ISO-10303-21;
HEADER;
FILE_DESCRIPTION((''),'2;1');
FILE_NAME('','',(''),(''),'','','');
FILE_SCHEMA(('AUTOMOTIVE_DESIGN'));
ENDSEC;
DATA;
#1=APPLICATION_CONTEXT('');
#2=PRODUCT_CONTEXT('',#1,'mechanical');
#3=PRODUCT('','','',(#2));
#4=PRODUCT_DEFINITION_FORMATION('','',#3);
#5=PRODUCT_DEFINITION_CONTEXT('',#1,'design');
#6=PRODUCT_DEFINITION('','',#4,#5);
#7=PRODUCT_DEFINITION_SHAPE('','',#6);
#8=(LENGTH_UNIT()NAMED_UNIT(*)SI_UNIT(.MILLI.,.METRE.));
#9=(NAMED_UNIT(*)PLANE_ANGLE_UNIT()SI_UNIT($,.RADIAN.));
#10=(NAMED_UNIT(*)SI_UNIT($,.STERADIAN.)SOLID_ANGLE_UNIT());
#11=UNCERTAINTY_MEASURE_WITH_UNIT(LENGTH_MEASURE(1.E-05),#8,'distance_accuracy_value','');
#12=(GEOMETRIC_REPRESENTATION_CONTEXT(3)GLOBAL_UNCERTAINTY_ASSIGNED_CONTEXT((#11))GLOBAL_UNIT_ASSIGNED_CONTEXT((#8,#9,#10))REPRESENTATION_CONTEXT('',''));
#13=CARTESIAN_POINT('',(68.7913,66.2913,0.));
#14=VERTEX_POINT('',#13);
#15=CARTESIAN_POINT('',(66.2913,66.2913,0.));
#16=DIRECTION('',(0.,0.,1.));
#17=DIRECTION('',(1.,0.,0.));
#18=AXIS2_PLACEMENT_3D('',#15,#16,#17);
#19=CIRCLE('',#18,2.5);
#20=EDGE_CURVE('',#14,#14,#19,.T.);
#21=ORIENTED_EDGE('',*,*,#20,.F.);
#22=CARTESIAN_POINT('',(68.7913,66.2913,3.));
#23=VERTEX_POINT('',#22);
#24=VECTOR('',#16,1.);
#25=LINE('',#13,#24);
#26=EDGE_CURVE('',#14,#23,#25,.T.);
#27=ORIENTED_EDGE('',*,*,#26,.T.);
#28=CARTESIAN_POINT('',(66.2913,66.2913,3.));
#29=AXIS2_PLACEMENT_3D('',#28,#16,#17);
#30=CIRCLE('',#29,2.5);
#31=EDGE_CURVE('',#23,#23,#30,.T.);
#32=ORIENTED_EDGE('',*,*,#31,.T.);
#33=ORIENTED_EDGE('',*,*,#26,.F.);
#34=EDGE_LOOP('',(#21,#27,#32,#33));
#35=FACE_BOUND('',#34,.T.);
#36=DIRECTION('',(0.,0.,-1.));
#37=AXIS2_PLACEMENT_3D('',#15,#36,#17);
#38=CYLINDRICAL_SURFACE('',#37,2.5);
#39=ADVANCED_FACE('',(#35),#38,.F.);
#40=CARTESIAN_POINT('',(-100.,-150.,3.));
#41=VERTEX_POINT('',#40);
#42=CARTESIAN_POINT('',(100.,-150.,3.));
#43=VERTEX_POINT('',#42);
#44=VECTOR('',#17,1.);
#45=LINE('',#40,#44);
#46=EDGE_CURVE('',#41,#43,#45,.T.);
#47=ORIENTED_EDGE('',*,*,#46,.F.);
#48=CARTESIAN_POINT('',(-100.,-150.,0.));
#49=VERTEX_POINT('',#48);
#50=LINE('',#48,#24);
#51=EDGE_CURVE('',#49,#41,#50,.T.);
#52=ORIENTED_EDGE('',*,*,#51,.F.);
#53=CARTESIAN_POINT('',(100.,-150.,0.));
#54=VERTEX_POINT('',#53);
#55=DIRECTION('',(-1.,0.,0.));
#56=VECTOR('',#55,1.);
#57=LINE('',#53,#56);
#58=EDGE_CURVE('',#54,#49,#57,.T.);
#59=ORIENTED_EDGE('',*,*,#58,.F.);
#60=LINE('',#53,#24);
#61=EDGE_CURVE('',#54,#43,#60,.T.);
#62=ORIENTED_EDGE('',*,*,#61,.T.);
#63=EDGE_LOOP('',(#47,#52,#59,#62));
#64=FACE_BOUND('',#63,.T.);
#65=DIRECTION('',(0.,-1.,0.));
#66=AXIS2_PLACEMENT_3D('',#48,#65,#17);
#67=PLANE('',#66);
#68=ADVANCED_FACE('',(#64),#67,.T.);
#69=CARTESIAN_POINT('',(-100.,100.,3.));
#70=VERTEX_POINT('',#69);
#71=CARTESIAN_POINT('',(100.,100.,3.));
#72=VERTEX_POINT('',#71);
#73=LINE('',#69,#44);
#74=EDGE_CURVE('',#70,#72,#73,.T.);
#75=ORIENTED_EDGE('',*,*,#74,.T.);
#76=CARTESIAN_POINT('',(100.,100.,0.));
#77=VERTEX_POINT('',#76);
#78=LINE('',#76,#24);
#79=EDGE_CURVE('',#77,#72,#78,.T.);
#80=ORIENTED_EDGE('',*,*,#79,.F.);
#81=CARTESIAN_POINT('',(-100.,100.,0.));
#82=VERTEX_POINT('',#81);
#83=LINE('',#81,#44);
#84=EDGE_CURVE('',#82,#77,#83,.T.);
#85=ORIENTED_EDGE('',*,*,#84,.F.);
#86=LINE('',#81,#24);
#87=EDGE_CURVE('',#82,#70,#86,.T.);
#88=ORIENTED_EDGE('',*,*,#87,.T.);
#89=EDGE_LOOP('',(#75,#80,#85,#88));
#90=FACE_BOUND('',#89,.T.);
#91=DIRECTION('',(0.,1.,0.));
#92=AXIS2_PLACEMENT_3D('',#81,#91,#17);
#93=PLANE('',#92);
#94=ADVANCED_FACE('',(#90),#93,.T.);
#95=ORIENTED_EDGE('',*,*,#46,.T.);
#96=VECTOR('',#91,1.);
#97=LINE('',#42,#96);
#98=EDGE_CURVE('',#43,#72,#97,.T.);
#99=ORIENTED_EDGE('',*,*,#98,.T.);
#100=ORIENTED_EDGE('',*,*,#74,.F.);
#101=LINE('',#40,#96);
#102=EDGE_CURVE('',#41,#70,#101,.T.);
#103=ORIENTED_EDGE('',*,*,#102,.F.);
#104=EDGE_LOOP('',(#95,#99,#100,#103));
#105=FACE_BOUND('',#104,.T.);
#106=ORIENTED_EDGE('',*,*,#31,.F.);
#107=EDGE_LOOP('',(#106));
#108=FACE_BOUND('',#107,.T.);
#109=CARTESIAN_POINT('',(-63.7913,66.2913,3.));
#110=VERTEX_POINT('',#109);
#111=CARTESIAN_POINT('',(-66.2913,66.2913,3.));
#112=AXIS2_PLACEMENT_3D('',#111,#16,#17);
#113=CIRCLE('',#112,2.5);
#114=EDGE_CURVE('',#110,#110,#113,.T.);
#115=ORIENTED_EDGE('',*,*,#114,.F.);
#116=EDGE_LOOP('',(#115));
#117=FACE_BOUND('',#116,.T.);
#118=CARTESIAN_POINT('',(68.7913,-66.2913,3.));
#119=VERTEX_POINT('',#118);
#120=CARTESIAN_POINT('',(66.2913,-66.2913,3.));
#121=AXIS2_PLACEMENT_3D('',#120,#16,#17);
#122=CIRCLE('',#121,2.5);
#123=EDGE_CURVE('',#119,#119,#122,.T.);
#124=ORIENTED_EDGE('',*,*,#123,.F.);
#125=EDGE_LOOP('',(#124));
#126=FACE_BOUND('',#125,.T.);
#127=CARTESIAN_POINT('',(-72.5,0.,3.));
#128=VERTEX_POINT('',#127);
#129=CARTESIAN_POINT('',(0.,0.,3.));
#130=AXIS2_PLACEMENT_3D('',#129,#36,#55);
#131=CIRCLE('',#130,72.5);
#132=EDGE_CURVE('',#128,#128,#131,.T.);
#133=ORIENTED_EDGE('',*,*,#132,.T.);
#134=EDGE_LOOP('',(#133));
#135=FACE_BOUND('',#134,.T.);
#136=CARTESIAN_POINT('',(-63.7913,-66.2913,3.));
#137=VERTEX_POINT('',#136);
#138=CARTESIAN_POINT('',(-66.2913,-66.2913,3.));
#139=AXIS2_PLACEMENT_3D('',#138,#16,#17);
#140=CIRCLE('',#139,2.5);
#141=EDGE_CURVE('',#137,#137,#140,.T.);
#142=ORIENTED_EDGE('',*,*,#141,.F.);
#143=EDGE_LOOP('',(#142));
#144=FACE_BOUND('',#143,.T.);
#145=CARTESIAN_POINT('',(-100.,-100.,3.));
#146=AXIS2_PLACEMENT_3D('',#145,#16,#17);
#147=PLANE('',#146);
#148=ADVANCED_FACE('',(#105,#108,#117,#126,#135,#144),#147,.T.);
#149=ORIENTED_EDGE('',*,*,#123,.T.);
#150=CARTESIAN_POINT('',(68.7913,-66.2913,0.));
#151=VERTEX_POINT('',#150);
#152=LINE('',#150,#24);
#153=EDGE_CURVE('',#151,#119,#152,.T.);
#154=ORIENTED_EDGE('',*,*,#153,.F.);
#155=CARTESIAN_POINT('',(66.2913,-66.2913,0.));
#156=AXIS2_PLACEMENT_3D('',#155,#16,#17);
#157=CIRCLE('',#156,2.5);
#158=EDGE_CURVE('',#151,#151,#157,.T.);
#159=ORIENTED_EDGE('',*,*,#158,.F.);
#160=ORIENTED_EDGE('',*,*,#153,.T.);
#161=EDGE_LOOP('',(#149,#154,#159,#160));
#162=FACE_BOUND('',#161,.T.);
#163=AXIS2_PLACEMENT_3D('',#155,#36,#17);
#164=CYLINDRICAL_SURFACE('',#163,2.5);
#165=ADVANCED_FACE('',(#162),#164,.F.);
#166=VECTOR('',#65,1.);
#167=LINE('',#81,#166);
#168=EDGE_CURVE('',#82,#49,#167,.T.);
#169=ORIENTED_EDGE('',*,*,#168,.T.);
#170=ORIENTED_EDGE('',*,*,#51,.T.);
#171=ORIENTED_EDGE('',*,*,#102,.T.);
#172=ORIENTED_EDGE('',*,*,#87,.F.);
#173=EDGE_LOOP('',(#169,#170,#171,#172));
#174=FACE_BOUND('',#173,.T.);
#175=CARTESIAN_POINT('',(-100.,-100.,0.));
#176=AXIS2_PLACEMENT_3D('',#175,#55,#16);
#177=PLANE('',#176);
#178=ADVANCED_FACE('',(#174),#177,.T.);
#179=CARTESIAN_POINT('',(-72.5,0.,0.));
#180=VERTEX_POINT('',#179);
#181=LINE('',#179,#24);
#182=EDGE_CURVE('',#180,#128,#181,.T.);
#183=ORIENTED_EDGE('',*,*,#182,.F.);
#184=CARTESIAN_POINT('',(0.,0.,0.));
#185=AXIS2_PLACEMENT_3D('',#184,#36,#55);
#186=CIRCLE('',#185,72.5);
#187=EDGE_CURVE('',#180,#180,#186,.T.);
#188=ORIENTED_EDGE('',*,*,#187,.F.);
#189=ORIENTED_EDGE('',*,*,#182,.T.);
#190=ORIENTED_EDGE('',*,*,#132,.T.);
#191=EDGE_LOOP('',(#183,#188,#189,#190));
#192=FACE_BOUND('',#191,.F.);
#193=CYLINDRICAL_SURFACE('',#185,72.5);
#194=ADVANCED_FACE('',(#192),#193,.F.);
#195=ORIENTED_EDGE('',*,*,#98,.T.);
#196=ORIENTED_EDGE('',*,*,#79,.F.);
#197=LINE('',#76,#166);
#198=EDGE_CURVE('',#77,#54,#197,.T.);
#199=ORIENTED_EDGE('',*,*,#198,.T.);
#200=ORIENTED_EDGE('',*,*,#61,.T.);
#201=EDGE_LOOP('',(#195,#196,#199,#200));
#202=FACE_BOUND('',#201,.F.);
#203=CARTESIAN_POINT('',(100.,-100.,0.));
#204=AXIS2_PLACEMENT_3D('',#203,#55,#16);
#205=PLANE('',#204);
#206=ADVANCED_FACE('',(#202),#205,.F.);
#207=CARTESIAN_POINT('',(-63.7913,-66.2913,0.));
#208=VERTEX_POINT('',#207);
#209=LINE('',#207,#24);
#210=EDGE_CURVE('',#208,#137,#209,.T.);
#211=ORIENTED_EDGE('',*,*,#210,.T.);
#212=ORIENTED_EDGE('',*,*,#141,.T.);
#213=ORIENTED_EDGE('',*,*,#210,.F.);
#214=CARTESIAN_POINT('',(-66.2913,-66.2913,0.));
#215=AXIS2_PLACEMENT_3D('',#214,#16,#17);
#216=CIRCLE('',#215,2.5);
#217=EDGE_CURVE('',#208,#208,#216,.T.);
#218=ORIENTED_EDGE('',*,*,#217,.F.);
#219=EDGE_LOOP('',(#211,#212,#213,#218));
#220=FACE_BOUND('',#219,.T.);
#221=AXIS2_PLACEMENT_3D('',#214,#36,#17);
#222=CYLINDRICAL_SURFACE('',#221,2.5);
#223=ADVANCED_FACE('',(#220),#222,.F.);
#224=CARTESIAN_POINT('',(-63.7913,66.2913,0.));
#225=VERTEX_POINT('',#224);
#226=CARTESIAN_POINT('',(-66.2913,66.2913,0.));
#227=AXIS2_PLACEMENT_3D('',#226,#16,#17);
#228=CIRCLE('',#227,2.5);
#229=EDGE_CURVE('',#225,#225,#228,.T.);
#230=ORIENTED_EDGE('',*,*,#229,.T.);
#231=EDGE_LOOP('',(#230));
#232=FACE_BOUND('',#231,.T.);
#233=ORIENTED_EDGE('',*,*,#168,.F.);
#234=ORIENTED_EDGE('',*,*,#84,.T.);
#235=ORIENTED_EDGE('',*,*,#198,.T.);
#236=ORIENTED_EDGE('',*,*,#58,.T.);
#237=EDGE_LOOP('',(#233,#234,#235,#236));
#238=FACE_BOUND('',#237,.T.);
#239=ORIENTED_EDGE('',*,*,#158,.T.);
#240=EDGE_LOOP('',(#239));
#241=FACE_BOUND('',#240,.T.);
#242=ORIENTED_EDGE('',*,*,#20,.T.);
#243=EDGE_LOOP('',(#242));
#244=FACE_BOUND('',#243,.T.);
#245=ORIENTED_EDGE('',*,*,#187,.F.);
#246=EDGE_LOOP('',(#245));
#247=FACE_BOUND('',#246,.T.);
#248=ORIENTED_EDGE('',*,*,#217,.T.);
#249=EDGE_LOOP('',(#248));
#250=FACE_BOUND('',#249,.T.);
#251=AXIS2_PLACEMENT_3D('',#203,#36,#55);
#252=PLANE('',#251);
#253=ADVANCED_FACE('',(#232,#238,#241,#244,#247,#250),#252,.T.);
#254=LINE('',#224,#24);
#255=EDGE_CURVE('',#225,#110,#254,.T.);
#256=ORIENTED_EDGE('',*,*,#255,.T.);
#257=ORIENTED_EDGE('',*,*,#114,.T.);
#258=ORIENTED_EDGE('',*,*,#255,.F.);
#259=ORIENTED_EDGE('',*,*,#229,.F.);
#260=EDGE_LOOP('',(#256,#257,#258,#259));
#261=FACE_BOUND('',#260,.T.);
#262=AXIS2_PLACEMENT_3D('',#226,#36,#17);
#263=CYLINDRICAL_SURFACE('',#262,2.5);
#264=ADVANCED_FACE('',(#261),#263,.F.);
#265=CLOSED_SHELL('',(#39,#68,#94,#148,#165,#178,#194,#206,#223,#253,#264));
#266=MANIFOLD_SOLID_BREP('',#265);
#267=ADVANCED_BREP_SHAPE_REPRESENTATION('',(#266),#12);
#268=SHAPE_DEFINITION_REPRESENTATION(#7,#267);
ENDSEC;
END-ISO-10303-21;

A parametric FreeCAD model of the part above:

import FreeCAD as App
import Part
import Sketcher

V = App.Vector
Q = App.Units.Quantity

doc = App.newDocument("Part")
params = doc.addObject("Spreadsheet::Sheet", "Params")
for row, (alias, value) in enumerate([
    ("sketch1_diameter", "5 mm"),
    ("sketch1_width", "200 mm"),
    ("pad1_length", "3 mm"),
    ("sketch2_diameter", "145 mm"),
    ("pocket1_length", "10 mm"),
    ("sketch3_width", "200 mm"),
    ("sketch3_height", "3 mm"),
    ("pad2_length", "50 mm"),
], start=1):
    params.set(f"A{row}", alias)
    params.set(f"B{row}", "=" + value)
    params.setAlias(f"B{row}", alias)

body = doc.addObject("PartDesign::Body", "Body")

# Sketch on XY plane
sketch1 = doc.addObject("Sketcher::SketchObject", "Sketch")
body.addObject(sketch1)
sketch1.AttachmentSupport = (doc.XY_Plane, [""])
sketch1.MapMode = "FlatFace"
sketch1.addGeometry([
    Part.LineSegment(V(100, 100, 0), V(-100, 100, 0)),  # 0
    Part.LineSegment(V(-100, 100, 0), V(-100, -100, 0)),  # 1
    Part.LineSegment(V(-100, -100, 0), V(100, -100, 0)),  # 2
    Part.LineSegment(V(100, -100, 0), V(100, 100, 0)),  # 3
    Part.Circle(V(-66.3, -66.3, 0), V(0, 0, 1), 2.5),  # 4
    Part.Circle(V(66.3, -66.3, 0), V(0, 0, 1), 2.5),  # 5
    Part.Circle(V(-66.3, 66.3, 0), V(0, 0, 1), 2.5),  # 6
    Part.Circle(V(66.3, 66.3, 0), V(0, 0, 1), 2.5),  # 7
], False)
sketch1.addConstraint([
    Sketcher.Constraint("Coincident", 0, 2, 1, 1),
    Sketcher.Constraint("Coincident", 1, 2, 2, 1),
    Sketcher.Constraint("Coincident", 2, 2, 3, 1),
    Sketcher.Constraint("Coincident", 3, 2, 0, 1),
    Sketcher.Constraint("Horizontal", 0),
    Sketcher.Constraint("Vertical", 1),
    Sketcher.Constraint("Horizontal", 2),
    Sketcher.Constraint("Vertical", 3),
    Sketcher.Constraint("Equal", 4, 5),
    Sketcher.Constraint("Equal", 5, 6),
    Sketcher.Constraint("Equal", 6, 7),
    Sketcher.Constraint("Symmetric", 5, 3, 6, 3, -1, 1),
    Sketcher.Constraint("Symmetric", 4, 3, 7, 3, -1, 1),
    Sketcher.Constraint("Symmetric", 0, 2, 2, 2, -1, 1),
    Sketcher.Constraint("Symmetric", 4, 3, 5, 3, -2),
    Sketcher.Constraint("Equal", 2, 1),
    Sketcher.Constraint("Diameter", 4, Q("5 mm")),
    Sketcher.Constraint("DistanceX", 0, 2, 0, 1, Q("200 mm")),
    Sketcher.Constraint("DistanceX", 4, 3, -1, 1, Q("66.2913 mm")),
    Sketcher.Constraint("DistanceY", 4, 3, -1, 1, Q("66.2913 mm")),
])
sketch1.setExpression("Constraints[16]", "Params.sketch1_diameter")
sketch1.setExpression("Constraints[17]", "Params.sketch1_width")
pad1 = doc.addObject("PartDesign::Pad", "Pad")
body.addObject(pad1)
pad1.Profile = sketch1
pad1.setExpression("Length", "Params.pad1_length")

# Sketch on XY plane
sketch2 = doc.addObject("Sketcher::SketchObject", "Sketch001")
body.addObject(sketch2)
sketch2.AttachmentSupport = (doc.XY_Plane, [""])
sketch2.MapMode = "FlatFace"
sketch2.addGeometry(Part.Circle(V(0, 0, 0), V(0, 0, 1), 72), False)
sketch2.addConstraint([
    Sketcher.Constraint("Coincident", 0, 3, -1, 1),
    Sketcher.Constraint("Diameter", 0, Q("145 mm")),
])
sketch2.setExpression("Constraints[1]", "Params.sketch2_diameter")
pocket1 = doc.addObject("PartDesign::Pocket", "Pocket")
body.addObject(pocket1)
pocket1.Profile = sketch2
pocket1.setExpression("Length", "Params.pocket1_length")
pocket1.Reversed = True

# Sketch on XZ plane
sketch3 = doc.addObject("Sketcher::SketchObject", "Sketch002")
body.addObject(sketch3)
sketch3.AttachmentSupport = (doc.XZ_Plane, [""])
sketch3.MapMode = "FlatFace"
sketch3.AttachmentOffset = App.Placement(V(0, 0, 100), App.Rotation())
sketch3.addGeometry([
    Part.LineSegment(V(-100, 3, 0), V(-100, 0, 0)),
    Part.LineSegment(V(-100, 0, 0), V(100, 0, 0)),
    Part.LineSegment(V(100, 0, 0), V(100, 3, 0)),
    Part.LineSegment(V(100, 3, 0), V(-100, 3, 0)),
], False)
sketch3.addConstraint([
    Sketcher.Constraint("Coincident", 0, 2, 1, 1),
    Sketcher.Constraint("Coincident", 1, 2, 2, 1),
    Sketcher.Constraint("Coincident", 2, 2, 3, 1),
    Sketcher.Constraint("Coincident", 3, 2, 0, 1),
    Sketcher.Constraint("Vertical", 0),
    Sketcher.Constraint("Horizontal", 1),
    Sketcher.Constraint("Vertical", 2),
    Sketcher.Constraint("Horizontal", 3),
    Sketcher.Constraint("Symmetric", 0, 2, 1, 2, -1, 1),
    Sketcher.Constraint("DistanceX", 1, 1, 1, 2, Q("200 mm")),
    Sketcher.Constraint("DistanceY", 0, 2, 0, 1, Q("3 mm")),
])
sketch3.setExpression("Constraints[9]", "Params.sketch3_width")
sketch3.setExpression("Constraints[10]", "Params.sketch3_height")
pad2 = doc.addObject("PartDesign::Pad", "Pad001")
body.addObject(pad2)
pad2.Profile = sketch3
pad2.setExpression("Length", "Params.pad2_length")

doc.recompute()
